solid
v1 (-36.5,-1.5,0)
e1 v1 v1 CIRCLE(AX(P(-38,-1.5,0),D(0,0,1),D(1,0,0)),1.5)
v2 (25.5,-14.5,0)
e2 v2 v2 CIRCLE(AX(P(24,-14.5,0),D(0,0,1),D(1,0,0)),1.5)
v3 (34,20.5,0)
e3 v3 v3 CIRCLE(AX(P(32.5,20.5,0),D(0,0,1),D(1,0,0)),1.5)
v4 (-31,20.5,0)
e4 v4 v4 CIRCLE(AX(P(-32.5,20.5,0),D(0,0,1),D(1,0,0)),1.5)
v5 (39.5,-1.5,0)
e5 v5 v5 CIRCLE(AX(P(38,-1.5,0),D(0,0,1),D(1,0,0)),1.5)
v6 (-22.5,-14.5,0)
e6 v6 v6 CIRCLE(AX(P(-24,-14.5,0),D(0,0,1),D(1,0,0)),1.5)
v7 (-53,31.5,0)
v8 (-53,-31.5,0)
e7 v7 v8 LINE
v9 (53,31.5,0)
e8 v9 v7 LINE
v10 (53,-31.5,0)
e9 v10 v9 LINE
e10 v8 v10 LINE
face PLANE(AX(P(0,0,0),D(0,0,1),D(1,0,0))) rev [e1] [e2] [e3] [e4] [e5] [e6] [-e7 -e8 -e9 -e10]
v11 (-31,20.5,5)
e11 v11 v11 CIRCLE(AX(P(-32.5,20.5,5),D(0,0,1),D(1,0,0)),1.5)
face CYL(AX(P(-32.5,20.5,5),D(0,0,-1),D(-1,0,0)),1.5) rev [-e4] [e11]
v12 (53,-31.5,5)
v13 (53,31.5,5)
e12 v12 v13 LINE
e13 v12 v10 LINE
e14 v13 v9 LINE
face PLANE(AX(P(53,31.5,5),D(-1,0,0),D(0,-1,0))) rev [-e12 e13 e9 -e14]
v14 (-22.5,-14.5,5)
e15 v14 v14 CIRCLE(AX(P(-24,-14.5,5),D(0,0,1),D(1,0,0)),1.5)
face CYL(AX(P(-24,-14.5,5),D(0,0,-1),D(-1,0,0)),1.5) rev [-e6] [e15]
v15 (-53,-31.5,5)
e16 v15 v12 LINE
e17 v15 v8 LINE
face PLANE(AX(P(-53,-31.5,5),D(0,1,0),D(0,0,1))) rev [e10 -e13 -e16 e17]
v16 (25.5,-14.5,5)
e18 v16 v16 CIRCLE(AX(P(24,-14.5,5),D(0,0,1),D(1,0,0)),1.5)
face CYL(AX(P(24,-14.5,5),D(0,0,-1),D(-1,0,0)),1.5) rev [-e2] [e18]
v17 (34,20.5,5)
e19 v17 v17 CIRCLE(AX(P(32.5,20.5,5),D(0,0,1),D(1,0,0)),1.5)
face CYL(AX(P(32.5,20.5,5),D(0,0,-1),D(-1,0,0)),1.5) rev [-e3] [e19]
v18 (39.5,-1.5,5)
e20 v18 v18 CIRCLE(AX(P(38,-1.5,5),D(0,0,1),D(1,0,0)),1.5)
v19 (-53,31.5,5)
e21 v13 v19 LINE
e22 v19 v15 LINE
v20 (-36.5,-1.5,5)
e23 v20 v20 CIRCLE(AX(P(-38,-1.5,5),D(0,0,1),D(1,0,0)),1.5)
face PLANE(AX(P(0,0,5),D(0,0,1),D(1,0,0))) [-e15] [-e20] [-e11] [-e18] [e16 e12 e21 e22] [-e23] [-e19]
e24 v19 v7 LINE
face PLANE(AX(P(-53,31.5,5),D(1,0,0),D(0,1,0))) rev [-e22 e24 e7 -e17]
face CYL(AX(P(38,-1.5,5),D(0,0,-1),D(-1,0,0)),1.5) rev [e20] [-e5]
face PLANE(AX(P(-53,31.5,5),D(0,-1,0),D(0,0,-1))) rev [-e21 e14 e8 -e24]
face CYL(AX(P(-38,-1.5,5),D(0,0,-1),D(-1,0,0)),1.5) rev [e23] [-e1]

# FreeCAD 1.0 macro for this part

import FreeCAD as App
import Part
import Sketcher
from FreeCAD import Vector
Q = App.Units.Quantity

doc = App.newDocument("Part")
params = doc.addObject("Spreadsheet::Sheet", "Params")
for row, (alias, value) in enumerate([
    ("sketch1_width", "106 mm"),
    ("sketch1_height", "63 mm"),
    ("pad1_length", "5 mm"),
    ("sketch2_diameter", "3 mm"),
], start=1):
    params.set(f"A{row}", alias)
    params.set(f"B{row}", "=" + value)
    params.setAlias(f"B{row}", alias)

body = doc.addObject("PartDesign::Body", "Body")

# Sketch on XY plane
sketch1 = body.newObject("Sketcher::SketchObject", "Sketch")
sketch1.AttachmentSupport = (doc.getObject("XY_Plane"), [""])
sketch1.MapMode = "FlatFace"
sketch1.addGeometry(Part.LineSegment(Vector(-53, 31.5, 0), Vector(-53, -31.5, 0)), False)
sketch1.addGeometry(Part.LineSegment(Vector(-53, -31.5, 0), Vector(53, -31.5, 0)), False)
sketch1.addGeometry(Part.LineSegment(Vector(53, -31.5, 0), Vector(53, 31.5, 0)), False)
sketch1.addGeometry(Part.LineSegment(Vector(53, 31.5, 0), Vector(-53, 31.5, 0)), False)
sketch1.addConstraint(Sketcher.Constraint("Coincident", 0, 2, 1, 1))
sketch1.addConstraint(Sketcher.Constraint("Coincident", 1, 2, 2, 1))
sketch1.addConstraint(Sketcher.Constraint("Coincident", 2, 2, 3, 1))
sketch1.addConstraint(Sketcher.Constraint("Coincident", 3, 2, 0, 1))
sketch1.addConstraint(Sketcher.Constraint("Vertical", 0))
sketch1.addConstraint(Sketcher.Constraint("Horizontal", 1))
sketch1.addConstraint(Sketcher.Constraint("Vertical", 2))
sketch1.addConstraint(Sketcher.Constraint("Horizontal", 3))
sketch1.addConstraint(Sketcher.Constraint("Symmetric", 0, 2, 2, 2, -1, 1))
sketch1.addConstraint(Sketcher.Constraint("DistanceX", 1, 1, 1, 2, Q("106 mm")))
sketch1.addConstraint(Sketcher.Constraint("DistanceY", 0, 2, 0, 1, Q("63 mm")))
sketch1.setExpression("Constraints[9]", "Params.sketch1_width")
sketch1.setExpression("Constraints[10]", "Params.sketch1_height")
pad1 = body.newObject("PartDesign::Pad", "Pad")
pad1.Profile = sketch1
pad1.setExpression("Length", "Params.pad1_length")

# Sketch on XY plane
sketch2 = body.newObject("Sketcher::SketchObject", "Sketch001")
sketch2.AttachmentSupport = (doc.getObject("XY_Plane"), [""])
sketch2.MapMode = "FlatFace"
sketch2.addGeometry(Part.Circle(Vector(-24, -14.5, 0), Vector(0, 0, 1), 1.5), False)
sketch2.addGeometry(Part.Circle(Vector(24, -14.5, 0), Vector(0, 0, 1), 1.5), False)
sketch2.addGeometry(Part.Circle(Vector(-38, -1.5, 0), Vector(0, 0, 1), 1.5), False)
sketch2.addGeometry(Part.Circle(Vector(38, -1.5, 0), Vector(0, 0, 1), 1.5), False)
sketch2.addGeometry(Part.Circle(Vector(-32.5, 20.5, 0), Vector(0, 0, 1), 1.5), False)
sketch2.addGeometry(Part.Circle(Vector(32.5, 20.5, 0), Vector(0, 0, 1), 1.5), False)
sketch2.addConstraint(Sketcher.Constraint("Equal", 0, 1))
sketch2.addConstraint(Sketcher.Constraint("Equal", 1, 2))
sketch2.addConstraint(Sketcher.Constraint("Equal", 2, 3))
sketch2.addConstraint(Sketcher.Constraint("Equal", 3, 4))
sketch2.addConstraint(Sketcher.Constraint("Equal", 4, 5))
sketch2.addConstraint(Sketcher.Constraint("Symmetric", 0, 3, 1, 3, -2))
sketch2.addConstraint(Sketcher.Constraint("Symmetric", 2, 3, 3, 3, -2))
sketch2.addConstraint(Sketcher.Constraint("Symmetric", 4, 3, 5, 3, -2))
sketch2.addConstraint(Sketcher.Constraint("Diameter", 0, Q("3 mm")))
sketch2.addConstraint(Sketcher.Constraint("DistanceX", 0, 3, -1, 1, Q("24 mm")))
sketch2.addConstraint(Sketcher.Constraint("DistanceX", 2, 3, -1, 1, Q("38 mm")))
sketch2.addConstraint(Sketcher.Constraint("DistanceY", 0, 3, 2, 3, Q("13 mm")))
sketch2.addConstraint(Sketcher.Constraint("DistanceY", 2, 3, 4, 3, Q("22 mm")))
sketch2.addConstraint(Sketcher.Constraint("DistanceX", 4, 3, 5, 3, Q("65 mm")))
sketch2.addConstraint(Sketcher.Constraint("DistanceY", 0, 3, -1, 1, Q("14.5 mm")))
sketch2.setExpression("Constraints[8]", "Params.sketch2_diameter")
pocket1 = body.newObject("PartDesign::Pocket", "Pocket")
pocket1.Profile = sketch2
pocket1.Type = "ThroughAll"
pocket1.Reversed = True

doc.recompute()
